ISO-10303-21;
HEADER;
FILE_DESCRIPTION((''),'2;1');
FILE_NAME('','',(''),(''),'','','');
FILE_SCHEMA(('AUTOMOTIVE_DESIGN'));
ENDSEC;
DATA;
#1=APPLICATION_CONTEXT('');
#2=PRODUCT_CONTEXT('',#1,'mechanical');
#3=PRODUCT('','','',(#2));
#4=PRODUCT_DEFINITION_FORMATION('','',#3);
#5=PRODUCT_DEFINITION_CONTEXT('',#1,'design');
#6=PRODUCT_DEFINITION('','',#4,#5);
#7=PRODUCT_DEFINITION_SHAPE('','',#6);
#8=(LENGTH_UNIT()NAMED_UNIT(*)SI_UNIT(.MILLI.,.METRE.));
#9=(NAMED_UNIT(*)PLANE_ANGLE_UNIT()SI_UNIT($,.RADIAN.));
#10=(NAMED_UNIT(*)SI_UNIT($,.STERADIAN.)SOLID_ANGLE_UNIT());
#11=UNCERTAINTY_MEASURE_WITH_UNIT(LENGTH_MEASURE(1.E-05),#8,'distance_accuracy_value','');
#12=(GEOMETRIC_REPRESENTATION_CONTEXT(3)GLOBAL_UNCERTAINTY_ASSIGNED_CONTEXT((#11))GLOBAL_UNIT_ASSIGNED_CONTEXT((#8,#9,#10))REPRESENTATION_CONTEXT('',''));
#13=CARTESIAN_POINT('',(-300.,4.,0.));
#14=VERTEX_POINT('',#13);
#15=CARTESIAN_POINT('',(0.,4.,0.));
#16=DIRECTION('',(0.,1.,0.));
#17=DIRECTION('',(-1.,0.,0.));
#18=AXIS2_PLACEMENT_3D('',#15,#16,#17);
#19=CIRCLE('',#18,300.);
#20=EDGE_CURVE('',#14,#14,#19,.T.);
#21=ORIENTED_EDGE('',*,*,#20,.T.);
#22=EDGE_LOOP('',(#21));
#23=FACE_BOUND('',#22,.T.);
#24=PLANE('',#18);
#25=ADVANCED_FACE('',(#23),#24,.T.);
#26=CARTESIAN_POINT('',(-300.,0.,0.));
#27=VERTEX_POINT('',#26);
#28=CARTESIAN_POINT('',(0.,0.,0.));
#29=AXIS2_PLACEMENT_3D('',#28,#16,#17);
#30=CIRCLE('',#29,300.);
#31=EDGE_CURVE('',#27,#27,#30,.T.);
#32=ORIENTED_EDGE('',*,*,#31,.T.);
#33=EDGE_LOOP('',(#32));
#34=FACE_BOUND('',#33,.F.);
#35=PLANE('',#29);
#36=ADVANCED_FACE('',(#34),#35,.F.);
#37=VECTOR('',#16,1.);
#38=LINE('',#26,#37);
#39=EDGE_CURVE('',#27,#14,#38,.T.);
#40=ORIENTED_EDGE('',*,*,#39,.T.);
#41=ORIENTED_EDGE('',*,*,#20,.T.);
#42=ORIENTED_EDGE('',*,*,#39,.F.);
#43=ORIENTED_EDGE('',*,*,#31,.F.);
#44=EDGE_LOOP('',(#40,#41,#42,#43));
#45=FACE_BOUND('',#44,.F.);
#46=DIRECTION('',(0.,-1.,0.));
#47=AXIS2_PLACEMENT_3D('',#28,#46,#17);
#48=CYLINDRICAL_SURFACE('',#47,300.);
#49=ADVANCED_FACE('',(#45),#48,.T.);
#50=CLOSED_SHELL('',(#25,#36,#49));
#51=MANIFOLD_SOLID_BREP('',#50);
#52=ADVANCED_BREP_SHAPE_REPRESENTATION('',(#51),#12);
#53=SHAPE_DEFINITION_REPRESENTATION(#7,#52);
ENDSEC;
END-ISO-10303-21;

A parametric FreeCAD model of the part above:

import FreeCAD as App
import Part
import Sketcher

V = App.Vector
Q = App.Units.Quantity

doc = App.newDocument("Part")
params = doc.addObject("Spreadsheet::Sheet", "Params")
for row, (alias, value) in enumerate([
    ("sketch1_diameter", "600 mm"),
    ("pad1_length", "4 mm"),
], start=1):
    params.set(f"A{row}", alias)
    params.set(f"B{row}", "=" + value)
    params.setAlias(f"B{row}", alias)

body = doc.addObject("PartDesign::Body", "Body")

# Sketch on XZ plane
sketch1 = doc.addObject("Sketcher::SketchObject", "Sketch")
body.addObject(sketch1)
sketch1.AttachmentSupport = (doc.XZ_Plane, [""])
sketch1.MapMode = "FlatFace"
sketch1.addGeometry(Part.Circle(V(0, 0, 0), V(0, 0, 1), 300), False)
sketch1.addConstraint(Sketcher.Constraint("Coincident", 0, 3, -1, 1))
sketch1.addConstraint(Sketcher.Constraint("Diameter", 0, Q("600 mm")))
sketch1.setExpression("Constraints[1]", "Params.sketch1_diameter")
pad1 = doc.addObject("PartDesign::Pad", "Pad")
body.addObject(pad1)
pad1.Profile = sketch1
pad1.setExpression("Length", "Params.pad1_length")
pad1.Reversed = True

doc.recompute()
